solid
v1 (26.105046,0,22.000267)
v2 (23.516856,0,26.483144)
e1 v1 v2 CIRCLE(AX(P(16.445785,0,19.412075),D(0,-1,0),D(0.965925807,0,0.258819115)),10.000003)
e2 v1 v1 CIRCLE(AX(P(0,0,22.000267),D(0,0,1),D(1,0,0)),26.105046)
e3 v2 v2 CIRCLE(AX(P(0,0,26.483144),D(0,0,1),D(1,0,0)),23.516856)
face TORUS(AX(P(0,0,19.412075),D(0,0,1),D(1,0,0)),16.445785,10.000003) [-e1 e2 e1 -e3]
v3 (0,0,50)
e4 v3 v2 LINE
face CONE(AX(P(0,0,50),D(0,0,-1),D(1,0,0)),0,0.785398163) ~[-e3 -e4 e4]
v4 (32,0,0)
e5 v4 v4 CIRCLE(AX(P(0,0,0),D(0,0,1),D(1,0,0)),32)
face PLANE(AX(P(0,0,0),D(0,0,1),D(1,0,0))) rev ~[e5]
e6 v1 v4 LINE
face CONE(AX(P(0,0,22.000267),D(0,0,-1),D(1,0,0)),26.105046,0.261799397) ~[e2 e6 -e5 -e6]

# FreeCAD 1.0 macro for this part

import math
import FreeCAD as App
import Part
import Sketcher

V = App.Vector
Q = App.Units.Quantity

doc = App.newDocument("Part")
params = doc.addObject("Spreadsheet::Sheet", "Params")
for row, (alias, value) in enumerate([
    ("sketch1_width", "32 mm"),
    ("sketch1_height", "50 mm"),
    ("revolution_angle", "360 deg"),
], start=1):
    params.set(f"A{row}", alias)
    params.set(f"B{row}", "=" + value)
    params.setAlias(f"B{row}", alias)

body = doc.addObject("PartDesign::Body", "Body")

# Sketch on XZ plane
sketch1 = body.newObject("Sketcher::SketchObject", "Sketch")
sketch1.AttachmentSupport = (doc.getObject("XZ_Plane"), [""])
sketch1.MapMode = "FlatFace"
sketch1.addGeometry(Part.LineSegment(V(24, 26, 0), V(0, 50, 0)), False)
sketch1.addGeometry(Part.LineSegment(V(0, 50, 0), V(0, 0, 0)), False)
sketch1.addGeometry(Part.LineSegment(V(0, 0, 0), V(32, 0, 0)), False)
sketch1.addGeometry(Part.LineSegment(V(32, 0, 0), V(26, 22, 0)), False)
sketch1.addGeometry(Part.ArcOfCircle(Part.Circle(V(16, 19, 0), V(0, 0, 1), 10), math.radians(15), math.radians(45)), False)
sketch1.addConstraint(Sketcher.Constraint("Coincident", 0, 2, 1, 1))
sketch1.addConstraint(Sketcher.Constraint("Coincident", 1, 2, 2, 1))
sketch1.addConstraint(Sketcher.Constraint("Coincident", 2, 2, 3, 1))
sketch1.addConstraint(Sketcher.Constraint("Tangent", 3, 2, 4, 1))
sketch1.addConstraint(Sketcher.Constraint("Tangent", 4, 2, 0, 1))
sketch1.addConstraint(Sketcher.Constraint("Vertical", 1))
sketch1.addConstraint(Sketcher.Constraint("Horizontal", 2))
sketch1.addConstraint(Sketcher.Constraint("Coincident", 1, 2, -1, 1))
sketch1.addConstraint(Sketcher.Constraint("DistanceX", 2, 1, 2, 2, Q("32 mm")))
sketch1.addConstraint(Sketcher.Constraint("DistanceY", 1, 2, 1, 1, Q("50 mm")))
sketch1.addConstraint(Sketcher.Constraint("Angle", 0, Q("135 deg")))
sketch1.addConstraint(Sketcher.Constraint("Angle", 3, Q("105.000001 deg")))
sketch1.addConstraint(Sketcher.Constraint("Radius", 4, Q("10.000003 mm")))
sketch1.setExpression("Constraints[8]", "Params.sketch1_width")
sketch1.setExpression("Constraints[9]", "Params.sketch1_height")
revolution = body.newObject("PartDesign::Revolution", "Revolution")
revolution.Profile = sketch1
revolution.ReferenceAxis = (sketch1, ["V_Axis"])
revolution.setExpression("Angle", "Params.revolution_angle")

doc.recompute()
